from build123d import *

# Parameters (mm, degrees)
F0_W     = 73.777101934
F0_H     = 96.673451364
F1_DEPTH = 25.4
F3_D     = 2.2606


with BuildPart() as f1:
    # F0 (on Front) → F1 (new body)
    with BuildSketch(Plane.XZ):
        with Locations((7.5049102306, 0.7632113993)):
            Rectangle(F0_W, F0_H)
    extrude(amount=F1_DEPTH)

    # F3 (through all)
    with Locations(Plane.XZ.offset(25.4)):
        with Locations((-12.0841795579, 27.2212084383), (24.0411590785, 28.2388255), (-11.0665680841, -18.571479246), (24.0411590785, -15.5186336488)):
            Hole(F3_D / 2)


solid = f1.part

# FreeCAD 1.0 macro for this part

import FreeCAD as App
import Part
import Sketcher
Q = App.Units.Quantity

doc = App.newDocument("Part")
body = doc.addObject("PartDesign::Body", "Body")

# Sketch on XZ plane
sketch1 = body.newObject("Sketcher::SketchObject", "Sketch")
sketch1.AttachmentSupport = (doc.getObject("XZ_Plane"), [""])
sketch1.MapMode = "FlatFace"
sketch1.addGeometry([
    Part.LineSegment(App.Vector(-29, 49, 0), App.Vector(-29, -48, 0)),
    Part.LineSegment(App.Vector(-29, -48, 0), App.Vector(44, -48, 0)),
    Part.LineSegment(App.Vector(44, -48, 0), App.Vector(44, 49, 0)),
    Part.LineSegment(App.Vector(44, 49, 0), App.Vector(-29, 49, 0)),
], False)
sketch1.addConstraint([
    Sketcher.Constraint("Coincident", 0, 2, 1, 1),
    Sketcher.Constraint("Coincident", 1, 2, 2, 1),
    Sketcher.Constraint("Coincident", 2, 2, 3, 1),
    Sketcher.Constraint("Coincident", 3, 2, 0, 1),
    Sketcher.Constraint("Vertical", 0),
    Sketcher.Constraint("Horizontal", 1),
    Sketcher.Constraint("Vertical", 2),
    Sketcher.Constraint("Horizontal", 3),
    Sketcher.Constraint("DistanceX", 1, 1, 1, 2, Q("73.777102 mm")),
    Sketcher.Constraint("DistanceY", 0, 2, 0, 1, Q("96.673451 mm")),
    Sketcher.Constraint("DistanceX", 0, 2, -1, 1, Q("29.383641 mm")),
    Sketcher.Constraint("DistanceY", 0, 2, -1, 1, Q("47.573514 mm")),
])
pad1 = body.newObject("PartDesign::Pad", "Pad")
pad1.Profile = sketch1
pad1.Length = Q("1 in")

# Sketch on XZ plane
sketch2 = body.newObject("Sketcher::SketchObject", "Sketch001")
sketch2.AttachmentSupport = (doc.getObject("XZ_Plane"), [""])
sketch2.MapMode = "FlatFace"
sketch2.AttachmentOffset = App.Placement(App.Vector(0, 0, 1 * 25.4), App.Rotation())
sketch2.addGeometry([
    Part.Circle(App.Vector(-12.1, 27.2, 0), App.Vector(0, 0, 1), 1.1),
    Part.Circle(App.Vector(24, 28.2, 0), App.Vector(0, 0, 1), 1.1),
    Part.Circle(App.Vector(-11.1, -18.6, 0), App.Vector(0, 0, 1), 1.1),
    Part.Circle(App.Vector(24, -15.5, 0), App.Vector(0, 0, 1), 1.1),
], False)
sketch2.addConstraint([
    Sketcher.Constraint("Equal", 0, 1),
    Sketcher.Constraint("Equal", 1, 2),
    Sketcher.Constraint("Equal", 2, 3),
    Sketcher.Constraint("Vertical", 1, 3, 3, 3),
    Sketcher.Constraint("Diameter", 0, Q("0.089 in")),
    Sketcher.Constraint("DistanceX", 0, 3, -1, 1, Q("12.08418 mm")),
    Sketcher.Constraint("DistanceY", -1, 1, 0, 3, Q("27.221208 mm")),
    Sketcher.Constraint("DistanceX", -1, 1, 1, 3, Q("24.041159 mm")),
    Sketcher.Constraint("DistanceX", 2, 3, -1, 1, Q("11.066568 mm")),
    Sketcher.Constraint("DistanceY", 2, 3, -1, 1, Q("18.571479 mm")),
    Sketcher.Constraint("DistanceY", 3, 3, 1, 3, Q("43.757459 mm")),
    Sketcher.Constraint("DistanceY", -1, 1, 1, 3, Q("28.238826 mm")),
])
doc.recompute()
hole = body.newObject("PartDesign::Hole", "Hole")
hole.Profile = sketch2
hole.ThreadType = "None"
hole.Diameter = Q("0.089 in")
hole.DepthType = "ThroughAll"

doc.recompute()
